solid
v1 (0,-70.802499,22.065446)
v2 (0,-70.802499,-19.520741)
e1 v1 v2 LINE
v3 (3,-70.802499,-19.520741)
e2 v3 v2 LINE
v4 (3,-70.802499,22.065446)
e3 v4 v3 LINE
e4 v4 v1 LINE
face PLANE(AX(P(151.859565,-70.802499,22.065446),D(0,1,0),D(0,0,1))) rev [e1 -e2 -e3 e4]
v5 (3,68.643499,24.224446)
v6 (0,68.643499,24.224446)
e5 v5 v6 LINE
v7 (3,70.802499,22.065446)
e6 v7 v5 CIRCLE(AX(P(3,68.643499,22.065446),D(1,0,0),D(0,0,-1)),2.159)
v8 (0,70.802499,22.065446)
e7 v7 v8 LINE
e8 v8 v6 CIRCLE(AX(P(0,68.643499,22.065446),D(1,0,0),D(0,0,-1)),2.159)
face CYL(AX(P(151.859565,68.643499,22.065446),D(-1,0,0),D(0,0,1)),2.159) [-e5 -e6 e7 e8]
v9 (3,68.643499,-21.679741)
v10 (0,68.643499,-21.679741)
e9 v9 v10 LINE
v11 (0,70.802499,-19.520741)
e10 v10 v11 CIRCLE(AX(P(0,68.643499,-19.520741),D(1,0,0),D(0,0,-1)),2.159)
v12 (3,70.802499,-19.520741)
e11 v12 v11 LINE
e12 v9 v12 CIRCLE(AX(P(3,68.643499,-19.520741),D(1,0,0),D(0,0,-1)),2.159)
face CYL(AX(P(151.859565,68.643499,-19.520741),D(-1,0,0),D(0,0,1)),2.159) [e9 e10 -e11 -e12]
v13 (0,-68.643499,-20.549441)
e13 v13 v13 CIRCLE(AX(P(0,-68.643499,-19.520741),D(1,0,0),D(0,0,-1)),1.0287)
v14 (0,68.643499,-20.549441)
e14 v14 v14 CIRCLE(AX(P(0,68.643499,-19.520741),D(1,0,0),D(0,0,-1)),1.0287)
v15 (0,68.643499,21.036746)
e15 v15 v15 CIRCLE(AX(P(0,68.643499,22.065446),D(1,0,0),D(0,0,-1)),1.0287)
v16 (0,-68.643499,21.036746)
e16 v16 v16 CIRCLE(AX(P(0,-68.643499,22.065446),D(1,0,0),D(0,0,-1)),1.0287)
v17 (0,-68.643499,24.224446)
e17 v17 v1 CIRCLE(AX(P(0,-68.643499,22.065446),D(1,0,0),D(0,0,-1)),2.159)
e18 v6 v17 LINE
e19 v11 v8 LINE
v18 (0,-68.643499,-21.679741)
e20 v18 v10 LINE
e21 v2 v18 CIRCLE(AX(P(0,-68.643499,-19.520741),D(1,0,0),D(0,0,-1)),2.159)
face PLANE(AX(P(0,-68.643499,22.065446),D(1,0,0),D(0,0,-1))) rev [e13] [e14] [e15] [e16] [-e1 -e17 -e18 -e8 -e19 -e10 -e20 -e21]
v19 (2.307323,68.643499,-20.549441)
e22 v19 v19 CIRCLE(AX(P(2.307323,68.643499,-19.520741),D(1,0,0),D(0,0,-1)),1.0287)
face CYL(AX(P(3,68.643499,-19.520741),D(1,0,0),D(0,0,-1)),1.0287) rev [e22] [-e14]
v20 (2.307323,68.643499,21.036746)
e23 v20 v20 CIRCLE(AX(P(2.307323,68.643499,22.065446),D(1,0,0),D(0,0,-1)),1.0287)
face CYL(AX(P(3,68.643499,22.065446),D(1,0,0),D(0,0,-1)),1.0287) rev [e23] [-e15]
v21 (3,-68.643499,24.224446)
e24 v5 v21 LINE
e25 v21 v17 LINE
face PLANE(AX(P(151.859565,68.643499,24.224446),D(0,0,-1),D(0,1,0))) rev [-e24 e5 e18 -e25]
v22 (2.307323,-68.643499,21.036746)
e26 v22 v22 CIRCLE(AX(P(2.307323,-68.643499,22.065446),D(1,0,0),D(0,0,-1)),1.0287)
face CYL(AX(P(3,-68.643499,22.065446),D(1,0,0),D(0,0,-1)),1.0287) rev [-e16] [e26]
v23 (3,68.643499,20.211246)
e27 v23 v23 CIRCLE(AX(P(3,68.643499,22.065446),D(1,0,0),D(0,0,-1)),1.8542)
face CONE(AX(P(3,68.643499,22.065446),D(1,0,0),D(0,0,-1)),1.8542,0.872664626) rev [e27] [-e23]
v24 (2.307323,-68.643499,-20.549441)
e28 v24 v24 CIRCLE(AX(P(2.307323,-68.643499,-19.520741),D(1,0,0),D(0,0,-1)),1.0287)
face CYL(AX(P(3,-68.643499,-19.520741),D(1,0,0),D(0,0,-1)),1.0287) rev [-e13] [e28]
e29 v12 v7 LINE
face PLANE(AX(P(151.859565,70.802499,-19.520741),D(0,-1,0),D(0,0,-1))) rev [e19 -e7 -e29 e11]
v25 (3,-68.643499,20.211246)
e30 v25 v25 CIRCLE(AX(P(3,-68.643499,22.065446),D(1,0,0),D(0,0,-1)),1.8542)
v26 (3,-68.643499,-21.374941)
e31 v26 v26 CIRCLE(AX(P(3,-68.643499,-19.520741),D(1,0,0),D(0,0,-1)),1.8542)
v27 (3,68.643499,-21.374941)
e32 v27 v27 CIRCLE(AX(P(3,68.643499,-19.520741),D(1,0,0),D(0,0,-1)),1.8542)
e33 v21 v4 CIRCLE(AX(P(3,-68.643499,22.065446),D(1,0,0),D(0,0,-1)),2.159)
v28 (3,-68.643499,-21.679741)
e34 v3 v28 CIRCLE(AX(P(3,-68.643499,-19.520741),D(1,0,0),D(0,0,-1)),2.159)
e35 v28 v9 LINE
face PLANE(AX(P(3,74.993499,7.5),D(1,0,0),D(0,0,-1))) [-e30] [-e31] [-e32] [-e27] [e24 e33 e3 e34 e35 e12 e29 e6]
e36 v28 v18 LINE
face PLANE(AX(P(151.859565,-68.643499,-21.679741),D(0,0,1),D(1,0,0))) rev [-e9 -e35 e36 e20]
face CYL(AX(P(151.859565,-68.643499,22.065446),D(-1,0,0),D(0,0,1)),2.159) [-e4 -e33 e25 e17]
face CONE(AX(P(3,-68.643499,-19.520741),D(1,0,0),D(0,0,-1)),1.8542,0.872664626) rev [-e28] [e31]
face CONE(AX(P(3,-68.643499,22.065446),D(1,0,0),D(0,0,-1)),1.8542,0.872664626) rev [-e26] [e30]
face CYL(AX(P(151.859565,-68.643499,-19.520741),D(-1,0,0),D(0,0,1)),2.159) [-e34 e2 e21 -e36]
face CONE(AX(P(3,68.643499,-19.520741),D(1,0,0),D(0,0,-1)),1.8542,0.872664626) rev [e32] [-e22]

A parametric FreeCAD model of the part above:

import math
import FreeCAD as App
import Part
import Sketcher
from FreeCAD import Vector
Q = App.Units.Quantity

doc = App.newDocument("Part")
body = doc.addObject("PartDesign::Body", "Body")

# Sketch on YZ plane
sketch1 = body.newObject("Sketcher::SketchObject", "Sketch")
sketch1.AttachmentSupport = (doc.getObject("YZ_Plane"), [""])
sketch1.MapMode = "FlatFace"
sketch1.addGeometry(Part.LineSegment(Vector(-70.8, 22.1, 0), Vector(-70.8, -19.5, 0)), False)
sketch1.addGeometry(Part.ArcOfCircle(Part.Circle(Vector(-68.6, -19.5, 0), Vector(0, 0, 1), 2.2), math.radians(180), math.radians(270)), False)
sketch1.addGeometry(Part.LineSegment(Vector(-68.6, -21.7, 0), Vector(68.6, -21.7, 0)), False)
sketch1.addGeometry(Part.ArcOfCircle(Part.Circle(Vector(68.6, -19.5, 0), Vector(0, 0, 1), 2.2), math.radians(-90), math.radians(0)), False)
sketch1.addGeometry(Part.LineSegment(Vector(70.8, -19.5, 0), Vector(70.8, 22.1, 0)), False)
sketch1.addGeometry(Part.ArcOfCircle(Part.Circle(Vector(68.6, 22.1, 0), Vector(0, 0, 1), 2.2), math.radians(0), math.radians(90)), False)
sketch1.addGeometry(Part.LineSegment(Vector(68.6, 24.2, 0), Vector(-68.6, 24.2, 0)), False)
sketch1.addGeometry(Part.ArcOfCircle(Part.Circle(Vector(-68.6, 22.1, 0), Vector(0, 0, 1), 2.2), math.radians(90), math.radians(180)), False)
sketch1.addConstraint(Sketcher.Constraint("Tangent", 0, 2, 1, 1))
sketch1.addConstraint(Sketcher.Constraint("Tangent", 1, 2, 2, 1))
sketch1.addConstraint(Sketcher.Constraint("Tangent", 2, 2, 3, 1))
sketch1.addConstraint(Sketcher.Constraint("Tangent", 3, 2, 4, 1))
sketch1.addConstraint(Sketcher.Constraint("Tangent", 4, 2, 5, 1))
sketch1.addConstraint(Sketcher.Constraint("Tangent", 5, 2, 6, 1))
sketch1.addConstraint(Sketcher.Constraint("Tangent", 6, 2, 7, 1))
sketch1.addConstraint(Sketcher.Constraint("Tangent", 7, 2, 0, 1))
sketch1.addConstraint(Sketcher.Constraint("Vertical", 0))
sketch1.addConstraint(Sketcher.Constraint("Horizontal", 2))
sketch1.addConstraint(Sketcher.Constraint("Vertical", 4))
sketch1.addConstraint(Sketcher.Constraint("Horizontal", 6))
sketch1.addConstraint(Sketcher.Constraint("Equal", 1, 3))
sketch1.addConstraint(Sketcher.Constraint("Equal", 3, 5))
sketch1.addConstraint(Sketcher.Constraint("Equal", 5, 7))
sketch1.addConstraint(Sketcher.Constraint("Radius", 1, Q("0.085 in")))
sketch1.addConstraint(Sketcher.Constraint("DistanceX", 2, 1, 2, 2, Q("5.4049999 in")))
sketch1.addConstraint(Sketcher.Constraint("DistanceX", 1, 3, -1, 1, Q("2.7025 in")))
sketch1.addConstraint(Sketcher.Constraint("DistanceY", 0, 2, 0, 1, 41.586187))
sketch1.addConstraint(Sketcher.Constraint("DistanceY", 1, 3, -1, 1, 19.520741))
pad1 = body.newObject("PartDesign::Pad", "Pad")
pad1.Profile = sketch1
pad1.Length = 3

# Sketch on YZ plane
sketch2 = body.newObject("Sketcher::SketchObject", "Sketch001")
sketch2.AttachmentSupport = (doc.getObject("YZ_Plane"), [""])
sketch2.MapMode = "FlatFace"
sketch2.AttachmentOffset = App.Placement(Vector(0, 0, 3), App.Rotation())
sketch2.addGeometry(Part.Circle(Vector(68.6, 22.1, 0), Vector(0, 0, 1), 1), False)
sketch2.addGeometry(Part.Circle(Vector(68.6, -19.5, 0), Vector(0, 0, 1), 1), False)
sketch2.addGeometry(Part.Circle(Vector(-68.6, -19.5, 0), Vector(0, 0, 1), 1), False)
sketch2.addGeometry(Part.Circle(Vector(-68.6, 22.1, 0), Vector(0, 0, 1), 1), False)
sketch2.addConstraint(Sketcher.Constraint("Equal", 0, 1))
sketch2.addConstraint(Sketcher.Constraint("Equal", 1, 2))
sketch2.addConstraint(Sketcher.Constraint("Equal", 2, 3))
sketch2.addConstraint(Sketcher.Constraint("Symmetric", 1, 3, 2, 3, -2))
sketch2.addConstraint(Sketcher.Constraint("Symmetric", 0, 3, 3, 3, -2))
sketch2.addConstraint(Sketcher.Constraint("Vertical", 0, 3, 1, 3))
sketch2.addConstraint(Sketcher.Constraint("Diameter", 0, Q("0.081 in")))
sketch2.addConstraint(Sketcher.Constraint("DistanceX", 2, 3, 1, 3, Q("5.4049999 in")))
sketch2.addConstraint(Sketcher.Constraint("DistanceY", 1, 3, -1, 1, 19.520741))
sketch2.addConstraint(Sketcher.Constraint("DistanceY", -1, 1, 0, 3, 22.065446))
doc.recompute()
hole = body.newObject("PartDesign::Hole", "Hole")
hole.Profile = sketch2
hole.ThreadType = "None"
hole.Diameter = Q("0.081 in")
hole.DepthType = "ThroughAll"
hole.HoleCutType = "Countersink"
hole.HoleCutDiameter = Q("0.146 in")
hole.HoleCutCountersinkAngle = 100

doc.recompute()
